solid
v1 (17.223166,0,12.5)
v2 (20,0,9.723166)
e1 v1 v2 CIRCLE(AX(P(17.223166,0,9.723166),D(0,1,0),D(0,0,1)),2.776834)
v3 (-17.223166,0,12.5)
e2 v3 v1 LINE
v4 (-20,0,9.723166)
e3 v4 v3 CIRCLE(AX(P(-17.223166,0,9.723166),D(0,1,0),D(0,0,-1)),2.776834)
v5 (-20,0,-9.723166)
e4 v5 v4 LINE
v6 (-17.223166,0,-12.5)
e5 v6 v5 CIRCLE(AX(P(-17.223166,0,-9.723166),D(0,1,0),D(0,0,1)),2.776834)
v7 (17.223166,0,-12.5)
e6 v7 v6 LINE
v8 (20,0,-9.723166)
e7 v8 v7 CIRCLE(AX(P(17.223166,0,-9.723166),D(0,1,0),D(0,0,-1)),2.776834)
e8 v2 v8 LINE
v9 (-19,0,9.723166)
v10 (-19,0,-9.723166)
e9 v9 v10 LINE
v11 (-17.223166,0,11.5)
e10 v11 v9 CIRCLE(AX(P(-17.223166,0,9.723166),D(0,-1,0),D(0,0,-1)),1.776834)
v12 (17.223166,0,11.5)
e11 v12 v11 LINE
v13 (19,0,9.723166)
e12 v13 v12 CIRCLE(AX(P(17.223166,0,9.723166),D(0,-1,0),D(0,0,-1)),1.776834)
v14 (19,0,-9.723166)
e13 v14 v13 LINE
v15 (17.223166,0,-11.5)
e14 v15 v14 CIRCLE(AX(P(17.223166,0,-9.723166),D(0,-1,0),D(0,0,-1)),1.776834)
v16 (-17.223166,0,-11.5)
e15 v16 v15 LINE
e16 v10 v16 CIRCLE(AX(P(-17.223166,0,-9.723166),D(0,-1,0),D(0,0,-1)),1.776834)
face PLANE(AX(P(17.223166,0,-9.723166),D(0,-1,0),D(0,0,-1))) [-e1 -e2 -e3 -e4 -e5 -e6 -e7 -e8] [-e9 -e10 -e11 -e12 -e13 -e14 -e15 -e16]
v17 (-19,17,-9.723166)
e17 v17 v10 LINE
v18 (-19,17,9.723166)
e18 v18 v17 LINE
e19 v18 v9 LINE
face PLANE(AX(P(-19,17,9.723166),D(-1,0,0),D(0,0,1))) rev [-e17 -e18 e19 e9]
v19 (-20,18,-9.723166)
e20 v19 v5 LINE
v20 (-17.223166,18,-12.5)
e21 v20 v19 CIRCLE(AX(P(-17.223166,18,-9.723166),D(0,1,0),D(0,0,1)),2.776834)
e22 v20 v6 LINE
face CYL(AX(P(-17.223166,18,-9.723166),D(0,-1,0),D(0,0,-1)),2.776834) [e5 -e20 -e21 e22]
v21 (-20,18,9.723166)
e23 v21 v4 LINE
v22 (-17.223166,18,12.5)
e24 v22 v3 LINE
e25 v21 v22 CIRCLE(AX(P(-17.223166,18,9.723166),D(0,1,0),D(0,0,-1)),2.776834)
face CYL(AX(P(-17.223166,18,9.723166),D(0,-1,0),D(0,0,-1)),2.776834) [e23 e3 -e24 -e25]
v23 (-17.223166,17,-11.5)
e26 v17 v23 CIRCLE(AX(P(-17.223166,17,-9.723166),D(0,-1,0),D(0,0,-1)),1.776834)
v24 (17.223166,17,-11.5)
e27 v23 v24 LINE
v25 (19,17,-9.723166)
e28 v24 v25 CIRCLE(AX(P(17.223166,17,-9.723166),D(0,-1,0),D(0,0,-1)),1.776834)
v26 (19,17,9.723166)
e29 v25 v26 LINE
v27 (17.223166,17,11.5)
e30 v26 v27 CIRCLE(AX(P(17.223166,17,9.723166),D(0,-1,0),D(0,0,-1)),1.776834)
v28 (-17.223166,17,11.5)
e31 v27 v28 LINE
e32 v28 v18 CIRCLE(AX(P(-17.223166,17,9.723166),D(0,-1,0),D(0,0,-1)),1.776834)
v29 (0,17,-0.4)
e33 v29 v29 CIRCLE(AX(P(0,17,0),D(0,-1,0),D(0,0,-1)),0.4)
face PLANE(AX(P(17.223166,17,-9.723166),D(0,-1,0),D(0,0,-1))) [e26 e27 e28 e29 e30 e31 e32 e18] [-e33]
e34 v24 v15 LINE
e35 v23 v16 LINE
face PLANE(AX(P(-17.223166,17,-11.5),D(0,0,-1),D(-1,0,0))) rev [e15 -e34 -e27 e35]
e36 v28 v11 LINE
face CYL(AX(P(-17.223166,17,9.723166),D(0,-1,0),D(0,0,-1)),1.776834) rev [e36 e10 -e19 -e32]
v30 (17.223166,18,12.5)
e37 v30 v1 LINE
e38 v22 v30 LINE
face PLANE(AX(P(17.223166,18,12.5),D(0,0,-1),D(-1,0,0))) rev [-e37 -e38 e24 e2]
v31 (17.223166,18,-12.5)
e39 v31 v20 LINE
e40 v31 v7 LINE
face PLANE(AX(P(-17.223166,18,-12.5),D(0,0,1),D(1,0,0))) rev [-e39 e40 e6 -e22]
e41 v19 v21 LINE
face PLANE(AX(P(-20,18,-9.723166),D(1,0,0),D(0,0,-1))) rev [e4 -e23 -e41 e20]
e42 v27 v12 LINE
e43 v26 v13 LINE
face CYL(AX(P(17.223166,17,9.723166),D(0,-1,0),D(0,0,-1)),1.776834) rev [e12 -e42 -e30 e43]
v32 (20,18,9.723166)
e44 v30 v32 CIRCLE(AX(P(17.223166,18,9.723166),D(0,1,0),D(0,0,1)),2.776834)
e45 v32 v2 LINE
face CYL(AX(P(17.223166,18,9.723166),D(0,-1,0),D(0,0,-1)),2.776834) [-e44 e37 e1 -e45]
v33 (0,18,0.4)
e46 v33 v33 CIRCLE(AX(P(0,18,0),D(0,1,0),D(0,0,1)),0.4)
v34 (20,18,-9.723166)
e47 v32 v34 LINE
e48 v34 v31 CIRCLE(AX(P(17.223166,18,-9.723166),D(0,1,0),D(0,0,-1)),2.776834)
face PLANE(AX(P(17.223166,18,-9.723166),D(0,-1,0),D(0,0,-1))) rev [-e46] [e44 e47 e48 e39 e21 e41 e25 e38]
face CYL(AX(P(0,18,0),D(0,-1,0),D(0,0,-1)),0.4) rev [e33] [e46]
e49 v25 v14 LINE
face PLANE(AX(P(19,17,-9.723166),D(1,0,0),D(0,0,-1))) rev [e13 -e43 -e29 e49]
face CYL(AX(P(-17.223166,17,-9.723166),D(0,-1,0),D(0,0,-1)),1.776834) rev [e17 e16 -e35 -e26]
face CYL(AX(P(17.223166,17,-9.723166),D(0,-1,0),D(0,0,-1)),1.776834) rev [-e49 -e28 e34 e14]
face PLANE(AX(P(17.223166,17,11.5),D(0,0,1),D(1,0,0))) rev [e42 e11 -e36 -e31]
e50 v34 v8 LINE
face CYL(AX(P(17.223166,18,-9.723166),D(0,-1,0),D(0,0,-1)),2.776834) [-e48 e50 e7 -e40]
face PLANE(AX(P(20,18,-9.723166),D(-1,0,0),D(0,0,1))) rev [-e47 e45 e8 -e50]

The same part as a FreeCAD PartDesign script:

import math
import FreeCAD as App
import Part
import Sketcher

V = App.Vector

doc = App.newDocument("Part")
body = doc.addObject("PartDesign::Body", "Body")

# Sketch on XZ plane
sketch1 = doc.addObject("Sketcher::SketchObject", "Sketch")
body.addObject(sketch1)
sketch1.AttachmentSupport = (doc.XZ_Plane, [""])
sketch1.MapMode = "FlatFace"
sketch1.addGeometry(Part.LineSegment(V(-20, -9.72, 0), V(-20, 9.72, 0)), False)
sketch1.addGeometry(Part.ArcOfCircle(Part.Circle(V(-17.22, 9.72, 0), V(0, 0, 1), 2.78), math.radians(90), math.radians(180)), False)
sketch1.addGeometry(Part.LineSegment(V(-17.22, 12.5, 0), V(17.22, 12.5, 0)), False)
sketch1.addGeometry(Part.ArcOfCircle(Part.Circle(V(17.22, 9.72, 0), V(0, 0, 1), 2.78), math.radians(0), math.radians(90)), False)
sketch1.addGeometry(Part.LineSegment(V(20, 9.72, 0), V(20, -9.72, 0)), False)
sketch1.addGeometry(Part.ArcOfCircle(Part.Circle(V(17.22, -9.72, 0), V(0, 0, 1), 2.78), math.radians(-90), math.radians(0)), False)
sketch1.addGeometry(Part.LineSegment(V(17.22, -12.5, 0), V(-17.22, -12.5, 0)), False)
sketch1.addGeometry(Part.ArcOfCircle(Part.Circle(V(-17.22, -9.72, 0), V(0, 0, 1), 2.78), math.radians(180), math.radians(270)), False)
sketch1.addGeometry(Part.Circle(V(0, 0, 0), V(0, 0, 1), 0.4), False)
sketch1.addConstraint(Sketcher.Constraint("Tangent", 0, 2, 1, 2))
sketch1.addConstraint(Sketcher.Constraint("Tangent", 1, 1, 2, 1))
sketch1.addConstraint(Sketcher.Constraint("Tangent", 2, 2, 3, 2))
sketch1.addConstraint(Sketcher.Constraint("Tangent", 3, 1, 4, 1))
sketch1.addConstraint(Sketcher.Constraint("Tangent", 4, 2, 5, 2))
sketch1.addConstraint(Sketcher.Constraint("Tangent", 5, 1, 6, 1))
sketch1.addConstraint(Sketcher.Constraint("Tangent", 6, 2, 7, 2))
sketch1.addConstraint(Sketcher.Constraint("Tangent", 7, 1, 0, 1))
sketch1.addConstraint(Sketcher.Constraint("Vertical", 0))
sketch1.addConstraint(Sketcher.Constraint("Horizontal", 2))
sketch1.addConstraint(Sketcher.Constraint("Vertical", 4))
sketch1.addConstraint(Sketcher.Constraint("Horizontal", 6))
sketch1.addConstraint(Sketcher.Constraint("Coincident", 8, 3, -1, 1))
sketch1.addConstraint(Sketcher.Constraint("Equal", 1, 3))
sketch1.addConstraint(Sketcher.Constraint("Equal", 3, 5))
sketch1.addConstraint(Sketcher.Constraint("Equal", 5, 7))
sketch1.addConstraint(Sketcher.Constraint("Symmetric", 1, 3, 5, 3, -1, 1))
sketch1.addConstraint(Sketcher.Constraint("Diameter", 8, 0.8))
sketch1.addConstraint(Sketcher.Constraint("DistanceX", 0, 2, -1, 1, 20.0))
sketch1.addConstraint(Sketcher.Constraint("DistanceY", 6, 2, 1, 1, 25.0))
sketch1.addConstraint(Sketcher.Constraint("Radius", 1, 2.776834))
pad1 = doc.addObject("PartDesign::Pad", "Pad")
body.addObject(pad1)
pad1.Profile = sketch1
pad1.Length = 18
pad1.Reversed = True

# Sketch on XZ plane
sketch2 = doc.addObject("Sketcher::SketchObject", "Sketch001")
body.addObject(sketch2)
sketch2.AttachmentSupport = (doc.XZ_Plane, [""])
sketch2.MapMode = "FlatFace"
sketch2.addGeometry(Part.LineSegment(V(19, -9.7, 0), V(19, 9.7, 0)), False)
sketch2.addGeometry(Part.ArcOfCircle(Part.Circle(V(17.2, 9.7, 0), V(0, 0, 1), 1.8), math.radians(0), math.radians(90)), False)
sketch2.addGeometry(Part.LineSegment(V(17.2, 11.5, 0), V(-17.2, 11.5, 0)), False)
sketch2.addGeometry(Part.ArcOfCircle(Part.Circle(V(-17.2, 9.7, 0), V(0, 0, 1), 1.8), math.radians(90), math.radians(180)), False)
sketch2.addGeometry(Part.LineSegment(V(-19, 9.7, 0), V(-19, -9.7, 0)), False)
sketch2.addGeometry(Part.ArcOfCircle(Part.Circle(V(-17.2, -9.7, 0), V(0, 0, 1), 1.8), math.radians(180), math.radians(270)), False)
sketch2.addGeometry(Part.LineSegment(V(-17.2, -11.5, 0), V(17.2, -11.5, 0)), False)
sketch2.addGeometry(Part.ArcOfCircle(Part.Circle(V(17.2, -9.7, 0), V(0, 0, 1), 1.8), math.radians(-90), math.radians(0)), False)
sketch2.addConstraint(Sketcher.Constraint("Tangent", 0, 2, 1, 1))
sketch2.addConstraint(Sketcher.Constraint("Tangent", 1, 2, 2, 1))
sketch2.addConstraint(Sketcher.Constraint("Tangent", 2, 2, 3, 1))
sketch2.addConstraint(Sketcher.Constraint("Tangent", 3, 2, 4, 1))
sketch2.addConstraint(Sketcher.Constraint("Tangent", 4, 2, 5, 1))
sketch2.addConstraint(Sketcher.Constraint("Tangent", 5, 2, 6, 1))
sketch2.addConstraint(Sketcher.Constraint("Tangent", 6, 2, 7, 1))
sketch2.addConstraint(Sketcher.Constraint("Tangent", 7, 2, 0, 1))
sketch2.addConstraint(Sketcher.Constraint("Vertical", 0))
sketch2.addConstraint(Sketcher.Constraint("Horizontal", 2))
sketch2.addConstraint(Sketcher.Constraint("Vertical", 4))
sketch2.addConstraint(Sketcher.Constraint("Horizontal", 6))
sketch2.addConstraint(Sketcher.Constraint("Equal", 1, 3))
sketch2.addConstraint(Sketcher.Constraint("Equal", 3, 5))
sketch2.addConstraint(Sketcher.Constraint("Equal", 5, 7))
sketch2.addConstraint(Sketcher.Constraint("Symmetric", 1, 3, 5, 3, -1, 1))
sketch2.addConstraint(Sketcher.Constraint("DistanceX", -1, 1, 0, 2, 19.0))
sketch2.addConstraint(Sketcher.Constraint("DistanceY", 5, 2, 2, 2, 23.0))
sketch2.addConstraint(Sketcher.Constraint("Radius", 1, 1.776834))
pocket1 = doc.addObject("PartDesign::Pocket", "Pocket")
body.addObject(pocket1)
pocket1.Profile = sketch2
pocket1.Length = 17

doc.recompute()
